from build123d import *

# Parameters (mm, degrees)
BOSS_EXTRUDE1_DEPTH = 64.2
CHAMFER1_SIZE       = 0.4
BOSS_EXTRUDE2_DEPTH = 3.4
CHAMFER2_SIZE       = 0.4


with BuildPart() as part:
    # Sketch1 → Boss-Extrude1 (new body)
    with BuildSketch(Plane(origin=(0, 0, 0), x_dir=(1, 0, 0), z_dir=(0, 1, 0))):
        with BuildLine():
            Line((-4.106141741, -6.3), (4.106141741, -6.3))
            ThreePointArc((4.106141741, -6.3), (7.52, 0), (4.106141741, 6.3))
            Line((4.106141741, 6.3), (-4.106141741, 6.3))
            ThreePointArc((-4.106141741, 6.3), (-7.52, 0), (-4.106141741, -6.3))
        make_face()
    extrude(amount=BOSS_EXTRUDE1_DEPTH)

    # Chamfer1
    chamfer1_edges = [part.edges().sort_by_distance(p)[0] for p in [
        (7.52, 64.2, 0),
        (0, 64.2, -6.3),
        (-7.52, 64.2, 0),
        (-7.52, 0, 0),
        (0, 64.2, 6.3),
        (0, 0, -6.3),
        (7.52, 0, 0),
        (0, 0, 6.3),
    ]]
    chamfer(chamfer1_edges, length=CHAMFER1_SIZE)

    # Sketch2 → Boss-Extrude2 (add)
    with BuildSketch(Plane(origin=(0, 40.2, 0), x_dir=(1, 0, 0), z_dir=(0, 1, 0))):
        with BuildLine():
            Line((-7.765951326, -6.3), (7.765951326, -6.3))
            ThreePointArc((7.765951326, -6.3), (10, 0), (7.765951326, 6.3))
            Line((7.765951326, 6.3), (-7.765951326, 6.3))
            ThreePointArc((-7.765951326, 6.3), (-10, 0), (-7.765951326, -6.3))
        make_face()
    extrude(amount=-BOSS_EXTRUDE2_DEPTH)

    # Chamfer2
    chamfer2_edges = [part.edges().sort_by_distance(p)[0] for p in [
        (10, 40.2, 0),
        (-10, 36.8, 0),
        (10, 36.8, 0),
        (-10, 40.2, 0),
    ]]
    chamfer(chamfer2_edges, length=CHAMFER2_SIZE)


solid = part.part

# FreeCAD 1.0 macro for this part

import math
import FreeCAD as App
import Part
import Sketcher

V = App.Vector
Q = App.Units.Quantity


def edges_at(feature, points):
    """Names of the edges that pass closest to the given points."""
    edges = feature.Shape.Edges
    near = lambda p: min(range(len(edges)), key=lambda i: edges[i].distToShape(Part.Vertex(*p))[0])
    return sorted({f"Edge{near(p) + 1}" for p in points})

doc = App.newDocument("Part")
params = doc.addObject("Spreadsheet::Sheet", "Params")
for row, (alias, value) in enumerate([
    ("sketch1_radius", "7.52 mm"),
    ("pad1_length", "64.2 mm"),
    ("chamfer_size", "0.4 mm"),
    ("sketch2_radius", "10 mm"),
    ("pad2_length", "3.4 mm"),
    ("chamfer2_size", "0.4 mm"),
], start=1):
    params.set(f"A{row}", alias)
    params.set(f"B{row}", "=" + value)
    params.setAlias(f"B{row}", alias)

body = doc.addObject("PartDesign::Body", "Body")

# Sketch on XZ plane
sketch1 = body.newObject("Sketcher::SketchObject", "Sketch")
sketch1.AttachmentSupport = (doc.getObject("XZ_Plane"), [""])
sketch1.MapMode = "FlatFace"
sketch1.addGeometry([
    Part.LineSegment(V(-4, 6, 0), V(4, 6, 0)),
    Part.ArcOfCircle(Part.Circle(V(0, 0, 0), V(0, 0, 1), 8), math.radians(-57), math.radians(57)),
    Part.LineSegment(V(4, -6, 0), V(-4, -6, 0)),
    Part.ArcOfCircle(Part.Circle(V(0, 0, 0), V(0, 0, 1), 8), math.radians(123), math.radians(237)),
], False)
sketch1.addConstraint([
    Sketcher.Constraint("Coincident", 0, 2, 1, 2),
    Sketcher.Constraint("Coincident", 1, 1, 2, 1),
    Sketcher.Constraint("Coincident", 2, 2, 3, 2),
    Sketcher.Constraint("Coincident", 3, 1, 0, 1),
    Sketcher.Constraint("Horizontal", 0),
    Sketcher.Constraint("Horizontal", 2),
    Sketcher.Constraint("Coincident", 1, 3, -1, 1),
    Sketcher.Constraint("Coincident", 3, 3, -1, 1),
    Sketcher.Constraint("Equal", 1, 3),
    Sketcher.Constraint("Vertical", 0, 2, 1, 1),
    Sketcher.Constraint("Radius", 1, Q("7.52 mm")),
    Sketcher.Constraint("DistanceY", -1, 1, 0, 2, Q("6.3 mm")),
])
sketch1.setExpression("Constraints[10]", "Params.sketch1_radius")
pad1 = body.newObject("PartDesign::Pad", "Pad")
pad1.Profile = sketch1
pad1.setExpression("Length", "Params.pad1_length")
pad1.Reversed = True
doc.recompute()

chamfer = body.newObject("PartDesign::Chamfer", "Chamfer")
chamfer.Base = (pad1, edges_at(pad1, [
    (7.52, 64.2, 0),
    (0, 64.2, -6.3),
    (-7.52, 64.2, 0),
    (-7.52, 0, 0),
    (0, 64.2, 6.3),
    (0, 0, -6.3),
    (7.52, 0, 0),
    (0, 0, 6.3),
]))
chamfer.setExpression("Size", "Params.chamfer_size")

# Sketch on XZ plane
sketch2 = body.newObject("Sketcher::SketchObject", "Sketch001")
sketch2.AttachmentSupport = (doc.getObject("XZ_Plane"), [""])
sketch2.MapMode = "FlatFace"
sketch2.AttachmentOffset = App.Placement(V(0, 0, -40.2), App.Rotation())
sketch2.addGeometry([
    Part.LineSegment(V(-8, 6, 0), V(8, 6, 0)),
    Part.ArcOfCircle(Part.Circle(V(0, 0, 0), V(0, 0, 1), 10), math.radians(-39), math.radians(39)),
    Part.LineSegment(V(8, -6, 0), V(-8, -6, 0)),
    Part.ArcOfCircle(Part.Circle(V(0, 0, 0), V(0, 0, 1), 10), math.radians(141), math.radians(219)),
], False)
sketch2.addConstraint([
    Sketcher.Constraint("Coincident", 0, 2, 1, 2),
    Sketcher.Constraint("Coincident", 1, 1, 2, 1),
    Sketcher.Constraint("Coincident", 2, 2, 3, 2),
    Sketcher.Constraint("Coincident", 3, 1, 0, 1),
    Sketcher.Constraint("Horizontal", 0),
    Sketcher.Constraint("Horizontal", 2),
    Sketcher.Constraint("Coincident", 1, 3, -1, 1),
    Sketcher.Constraint("Coincident", 3, 3, -1, 1),
    Sketcher.Constraint("Equal", 1, 3),
    Sketcher.Constraint("Vertical", 0, 2, 1, 1),
    Sketcher.Constraint("Radius", 1, Q("10 mm")),
    Sketcher.Constraint("DistanceY", -1, 1, 0, 2, Q("6.3 mm")),
])
sketch2.setExpression("Constraints[10]", "Params.sketch2_radius")
pad2 = body.newObject("PartDesign::Pad", "Pad001")
pad2.Profile = sketch2
pad2.setExpression("Length", "Params.pad2_length")
doc.recompute()

chamfer2 = body.newObject("PartDesign::Chamfer", "Chamfer001")
chamfer2.Base = (pad2, edges_at(pad2, [
    (10, 40.2, 0),
    (-10, 36.8, 0),
    (10, 36.8, 0),
    (-10, 40.2, 0),
]))
chamfer2.setExpression("Size", "Params.chamfer2_size")

doc.recompute()
